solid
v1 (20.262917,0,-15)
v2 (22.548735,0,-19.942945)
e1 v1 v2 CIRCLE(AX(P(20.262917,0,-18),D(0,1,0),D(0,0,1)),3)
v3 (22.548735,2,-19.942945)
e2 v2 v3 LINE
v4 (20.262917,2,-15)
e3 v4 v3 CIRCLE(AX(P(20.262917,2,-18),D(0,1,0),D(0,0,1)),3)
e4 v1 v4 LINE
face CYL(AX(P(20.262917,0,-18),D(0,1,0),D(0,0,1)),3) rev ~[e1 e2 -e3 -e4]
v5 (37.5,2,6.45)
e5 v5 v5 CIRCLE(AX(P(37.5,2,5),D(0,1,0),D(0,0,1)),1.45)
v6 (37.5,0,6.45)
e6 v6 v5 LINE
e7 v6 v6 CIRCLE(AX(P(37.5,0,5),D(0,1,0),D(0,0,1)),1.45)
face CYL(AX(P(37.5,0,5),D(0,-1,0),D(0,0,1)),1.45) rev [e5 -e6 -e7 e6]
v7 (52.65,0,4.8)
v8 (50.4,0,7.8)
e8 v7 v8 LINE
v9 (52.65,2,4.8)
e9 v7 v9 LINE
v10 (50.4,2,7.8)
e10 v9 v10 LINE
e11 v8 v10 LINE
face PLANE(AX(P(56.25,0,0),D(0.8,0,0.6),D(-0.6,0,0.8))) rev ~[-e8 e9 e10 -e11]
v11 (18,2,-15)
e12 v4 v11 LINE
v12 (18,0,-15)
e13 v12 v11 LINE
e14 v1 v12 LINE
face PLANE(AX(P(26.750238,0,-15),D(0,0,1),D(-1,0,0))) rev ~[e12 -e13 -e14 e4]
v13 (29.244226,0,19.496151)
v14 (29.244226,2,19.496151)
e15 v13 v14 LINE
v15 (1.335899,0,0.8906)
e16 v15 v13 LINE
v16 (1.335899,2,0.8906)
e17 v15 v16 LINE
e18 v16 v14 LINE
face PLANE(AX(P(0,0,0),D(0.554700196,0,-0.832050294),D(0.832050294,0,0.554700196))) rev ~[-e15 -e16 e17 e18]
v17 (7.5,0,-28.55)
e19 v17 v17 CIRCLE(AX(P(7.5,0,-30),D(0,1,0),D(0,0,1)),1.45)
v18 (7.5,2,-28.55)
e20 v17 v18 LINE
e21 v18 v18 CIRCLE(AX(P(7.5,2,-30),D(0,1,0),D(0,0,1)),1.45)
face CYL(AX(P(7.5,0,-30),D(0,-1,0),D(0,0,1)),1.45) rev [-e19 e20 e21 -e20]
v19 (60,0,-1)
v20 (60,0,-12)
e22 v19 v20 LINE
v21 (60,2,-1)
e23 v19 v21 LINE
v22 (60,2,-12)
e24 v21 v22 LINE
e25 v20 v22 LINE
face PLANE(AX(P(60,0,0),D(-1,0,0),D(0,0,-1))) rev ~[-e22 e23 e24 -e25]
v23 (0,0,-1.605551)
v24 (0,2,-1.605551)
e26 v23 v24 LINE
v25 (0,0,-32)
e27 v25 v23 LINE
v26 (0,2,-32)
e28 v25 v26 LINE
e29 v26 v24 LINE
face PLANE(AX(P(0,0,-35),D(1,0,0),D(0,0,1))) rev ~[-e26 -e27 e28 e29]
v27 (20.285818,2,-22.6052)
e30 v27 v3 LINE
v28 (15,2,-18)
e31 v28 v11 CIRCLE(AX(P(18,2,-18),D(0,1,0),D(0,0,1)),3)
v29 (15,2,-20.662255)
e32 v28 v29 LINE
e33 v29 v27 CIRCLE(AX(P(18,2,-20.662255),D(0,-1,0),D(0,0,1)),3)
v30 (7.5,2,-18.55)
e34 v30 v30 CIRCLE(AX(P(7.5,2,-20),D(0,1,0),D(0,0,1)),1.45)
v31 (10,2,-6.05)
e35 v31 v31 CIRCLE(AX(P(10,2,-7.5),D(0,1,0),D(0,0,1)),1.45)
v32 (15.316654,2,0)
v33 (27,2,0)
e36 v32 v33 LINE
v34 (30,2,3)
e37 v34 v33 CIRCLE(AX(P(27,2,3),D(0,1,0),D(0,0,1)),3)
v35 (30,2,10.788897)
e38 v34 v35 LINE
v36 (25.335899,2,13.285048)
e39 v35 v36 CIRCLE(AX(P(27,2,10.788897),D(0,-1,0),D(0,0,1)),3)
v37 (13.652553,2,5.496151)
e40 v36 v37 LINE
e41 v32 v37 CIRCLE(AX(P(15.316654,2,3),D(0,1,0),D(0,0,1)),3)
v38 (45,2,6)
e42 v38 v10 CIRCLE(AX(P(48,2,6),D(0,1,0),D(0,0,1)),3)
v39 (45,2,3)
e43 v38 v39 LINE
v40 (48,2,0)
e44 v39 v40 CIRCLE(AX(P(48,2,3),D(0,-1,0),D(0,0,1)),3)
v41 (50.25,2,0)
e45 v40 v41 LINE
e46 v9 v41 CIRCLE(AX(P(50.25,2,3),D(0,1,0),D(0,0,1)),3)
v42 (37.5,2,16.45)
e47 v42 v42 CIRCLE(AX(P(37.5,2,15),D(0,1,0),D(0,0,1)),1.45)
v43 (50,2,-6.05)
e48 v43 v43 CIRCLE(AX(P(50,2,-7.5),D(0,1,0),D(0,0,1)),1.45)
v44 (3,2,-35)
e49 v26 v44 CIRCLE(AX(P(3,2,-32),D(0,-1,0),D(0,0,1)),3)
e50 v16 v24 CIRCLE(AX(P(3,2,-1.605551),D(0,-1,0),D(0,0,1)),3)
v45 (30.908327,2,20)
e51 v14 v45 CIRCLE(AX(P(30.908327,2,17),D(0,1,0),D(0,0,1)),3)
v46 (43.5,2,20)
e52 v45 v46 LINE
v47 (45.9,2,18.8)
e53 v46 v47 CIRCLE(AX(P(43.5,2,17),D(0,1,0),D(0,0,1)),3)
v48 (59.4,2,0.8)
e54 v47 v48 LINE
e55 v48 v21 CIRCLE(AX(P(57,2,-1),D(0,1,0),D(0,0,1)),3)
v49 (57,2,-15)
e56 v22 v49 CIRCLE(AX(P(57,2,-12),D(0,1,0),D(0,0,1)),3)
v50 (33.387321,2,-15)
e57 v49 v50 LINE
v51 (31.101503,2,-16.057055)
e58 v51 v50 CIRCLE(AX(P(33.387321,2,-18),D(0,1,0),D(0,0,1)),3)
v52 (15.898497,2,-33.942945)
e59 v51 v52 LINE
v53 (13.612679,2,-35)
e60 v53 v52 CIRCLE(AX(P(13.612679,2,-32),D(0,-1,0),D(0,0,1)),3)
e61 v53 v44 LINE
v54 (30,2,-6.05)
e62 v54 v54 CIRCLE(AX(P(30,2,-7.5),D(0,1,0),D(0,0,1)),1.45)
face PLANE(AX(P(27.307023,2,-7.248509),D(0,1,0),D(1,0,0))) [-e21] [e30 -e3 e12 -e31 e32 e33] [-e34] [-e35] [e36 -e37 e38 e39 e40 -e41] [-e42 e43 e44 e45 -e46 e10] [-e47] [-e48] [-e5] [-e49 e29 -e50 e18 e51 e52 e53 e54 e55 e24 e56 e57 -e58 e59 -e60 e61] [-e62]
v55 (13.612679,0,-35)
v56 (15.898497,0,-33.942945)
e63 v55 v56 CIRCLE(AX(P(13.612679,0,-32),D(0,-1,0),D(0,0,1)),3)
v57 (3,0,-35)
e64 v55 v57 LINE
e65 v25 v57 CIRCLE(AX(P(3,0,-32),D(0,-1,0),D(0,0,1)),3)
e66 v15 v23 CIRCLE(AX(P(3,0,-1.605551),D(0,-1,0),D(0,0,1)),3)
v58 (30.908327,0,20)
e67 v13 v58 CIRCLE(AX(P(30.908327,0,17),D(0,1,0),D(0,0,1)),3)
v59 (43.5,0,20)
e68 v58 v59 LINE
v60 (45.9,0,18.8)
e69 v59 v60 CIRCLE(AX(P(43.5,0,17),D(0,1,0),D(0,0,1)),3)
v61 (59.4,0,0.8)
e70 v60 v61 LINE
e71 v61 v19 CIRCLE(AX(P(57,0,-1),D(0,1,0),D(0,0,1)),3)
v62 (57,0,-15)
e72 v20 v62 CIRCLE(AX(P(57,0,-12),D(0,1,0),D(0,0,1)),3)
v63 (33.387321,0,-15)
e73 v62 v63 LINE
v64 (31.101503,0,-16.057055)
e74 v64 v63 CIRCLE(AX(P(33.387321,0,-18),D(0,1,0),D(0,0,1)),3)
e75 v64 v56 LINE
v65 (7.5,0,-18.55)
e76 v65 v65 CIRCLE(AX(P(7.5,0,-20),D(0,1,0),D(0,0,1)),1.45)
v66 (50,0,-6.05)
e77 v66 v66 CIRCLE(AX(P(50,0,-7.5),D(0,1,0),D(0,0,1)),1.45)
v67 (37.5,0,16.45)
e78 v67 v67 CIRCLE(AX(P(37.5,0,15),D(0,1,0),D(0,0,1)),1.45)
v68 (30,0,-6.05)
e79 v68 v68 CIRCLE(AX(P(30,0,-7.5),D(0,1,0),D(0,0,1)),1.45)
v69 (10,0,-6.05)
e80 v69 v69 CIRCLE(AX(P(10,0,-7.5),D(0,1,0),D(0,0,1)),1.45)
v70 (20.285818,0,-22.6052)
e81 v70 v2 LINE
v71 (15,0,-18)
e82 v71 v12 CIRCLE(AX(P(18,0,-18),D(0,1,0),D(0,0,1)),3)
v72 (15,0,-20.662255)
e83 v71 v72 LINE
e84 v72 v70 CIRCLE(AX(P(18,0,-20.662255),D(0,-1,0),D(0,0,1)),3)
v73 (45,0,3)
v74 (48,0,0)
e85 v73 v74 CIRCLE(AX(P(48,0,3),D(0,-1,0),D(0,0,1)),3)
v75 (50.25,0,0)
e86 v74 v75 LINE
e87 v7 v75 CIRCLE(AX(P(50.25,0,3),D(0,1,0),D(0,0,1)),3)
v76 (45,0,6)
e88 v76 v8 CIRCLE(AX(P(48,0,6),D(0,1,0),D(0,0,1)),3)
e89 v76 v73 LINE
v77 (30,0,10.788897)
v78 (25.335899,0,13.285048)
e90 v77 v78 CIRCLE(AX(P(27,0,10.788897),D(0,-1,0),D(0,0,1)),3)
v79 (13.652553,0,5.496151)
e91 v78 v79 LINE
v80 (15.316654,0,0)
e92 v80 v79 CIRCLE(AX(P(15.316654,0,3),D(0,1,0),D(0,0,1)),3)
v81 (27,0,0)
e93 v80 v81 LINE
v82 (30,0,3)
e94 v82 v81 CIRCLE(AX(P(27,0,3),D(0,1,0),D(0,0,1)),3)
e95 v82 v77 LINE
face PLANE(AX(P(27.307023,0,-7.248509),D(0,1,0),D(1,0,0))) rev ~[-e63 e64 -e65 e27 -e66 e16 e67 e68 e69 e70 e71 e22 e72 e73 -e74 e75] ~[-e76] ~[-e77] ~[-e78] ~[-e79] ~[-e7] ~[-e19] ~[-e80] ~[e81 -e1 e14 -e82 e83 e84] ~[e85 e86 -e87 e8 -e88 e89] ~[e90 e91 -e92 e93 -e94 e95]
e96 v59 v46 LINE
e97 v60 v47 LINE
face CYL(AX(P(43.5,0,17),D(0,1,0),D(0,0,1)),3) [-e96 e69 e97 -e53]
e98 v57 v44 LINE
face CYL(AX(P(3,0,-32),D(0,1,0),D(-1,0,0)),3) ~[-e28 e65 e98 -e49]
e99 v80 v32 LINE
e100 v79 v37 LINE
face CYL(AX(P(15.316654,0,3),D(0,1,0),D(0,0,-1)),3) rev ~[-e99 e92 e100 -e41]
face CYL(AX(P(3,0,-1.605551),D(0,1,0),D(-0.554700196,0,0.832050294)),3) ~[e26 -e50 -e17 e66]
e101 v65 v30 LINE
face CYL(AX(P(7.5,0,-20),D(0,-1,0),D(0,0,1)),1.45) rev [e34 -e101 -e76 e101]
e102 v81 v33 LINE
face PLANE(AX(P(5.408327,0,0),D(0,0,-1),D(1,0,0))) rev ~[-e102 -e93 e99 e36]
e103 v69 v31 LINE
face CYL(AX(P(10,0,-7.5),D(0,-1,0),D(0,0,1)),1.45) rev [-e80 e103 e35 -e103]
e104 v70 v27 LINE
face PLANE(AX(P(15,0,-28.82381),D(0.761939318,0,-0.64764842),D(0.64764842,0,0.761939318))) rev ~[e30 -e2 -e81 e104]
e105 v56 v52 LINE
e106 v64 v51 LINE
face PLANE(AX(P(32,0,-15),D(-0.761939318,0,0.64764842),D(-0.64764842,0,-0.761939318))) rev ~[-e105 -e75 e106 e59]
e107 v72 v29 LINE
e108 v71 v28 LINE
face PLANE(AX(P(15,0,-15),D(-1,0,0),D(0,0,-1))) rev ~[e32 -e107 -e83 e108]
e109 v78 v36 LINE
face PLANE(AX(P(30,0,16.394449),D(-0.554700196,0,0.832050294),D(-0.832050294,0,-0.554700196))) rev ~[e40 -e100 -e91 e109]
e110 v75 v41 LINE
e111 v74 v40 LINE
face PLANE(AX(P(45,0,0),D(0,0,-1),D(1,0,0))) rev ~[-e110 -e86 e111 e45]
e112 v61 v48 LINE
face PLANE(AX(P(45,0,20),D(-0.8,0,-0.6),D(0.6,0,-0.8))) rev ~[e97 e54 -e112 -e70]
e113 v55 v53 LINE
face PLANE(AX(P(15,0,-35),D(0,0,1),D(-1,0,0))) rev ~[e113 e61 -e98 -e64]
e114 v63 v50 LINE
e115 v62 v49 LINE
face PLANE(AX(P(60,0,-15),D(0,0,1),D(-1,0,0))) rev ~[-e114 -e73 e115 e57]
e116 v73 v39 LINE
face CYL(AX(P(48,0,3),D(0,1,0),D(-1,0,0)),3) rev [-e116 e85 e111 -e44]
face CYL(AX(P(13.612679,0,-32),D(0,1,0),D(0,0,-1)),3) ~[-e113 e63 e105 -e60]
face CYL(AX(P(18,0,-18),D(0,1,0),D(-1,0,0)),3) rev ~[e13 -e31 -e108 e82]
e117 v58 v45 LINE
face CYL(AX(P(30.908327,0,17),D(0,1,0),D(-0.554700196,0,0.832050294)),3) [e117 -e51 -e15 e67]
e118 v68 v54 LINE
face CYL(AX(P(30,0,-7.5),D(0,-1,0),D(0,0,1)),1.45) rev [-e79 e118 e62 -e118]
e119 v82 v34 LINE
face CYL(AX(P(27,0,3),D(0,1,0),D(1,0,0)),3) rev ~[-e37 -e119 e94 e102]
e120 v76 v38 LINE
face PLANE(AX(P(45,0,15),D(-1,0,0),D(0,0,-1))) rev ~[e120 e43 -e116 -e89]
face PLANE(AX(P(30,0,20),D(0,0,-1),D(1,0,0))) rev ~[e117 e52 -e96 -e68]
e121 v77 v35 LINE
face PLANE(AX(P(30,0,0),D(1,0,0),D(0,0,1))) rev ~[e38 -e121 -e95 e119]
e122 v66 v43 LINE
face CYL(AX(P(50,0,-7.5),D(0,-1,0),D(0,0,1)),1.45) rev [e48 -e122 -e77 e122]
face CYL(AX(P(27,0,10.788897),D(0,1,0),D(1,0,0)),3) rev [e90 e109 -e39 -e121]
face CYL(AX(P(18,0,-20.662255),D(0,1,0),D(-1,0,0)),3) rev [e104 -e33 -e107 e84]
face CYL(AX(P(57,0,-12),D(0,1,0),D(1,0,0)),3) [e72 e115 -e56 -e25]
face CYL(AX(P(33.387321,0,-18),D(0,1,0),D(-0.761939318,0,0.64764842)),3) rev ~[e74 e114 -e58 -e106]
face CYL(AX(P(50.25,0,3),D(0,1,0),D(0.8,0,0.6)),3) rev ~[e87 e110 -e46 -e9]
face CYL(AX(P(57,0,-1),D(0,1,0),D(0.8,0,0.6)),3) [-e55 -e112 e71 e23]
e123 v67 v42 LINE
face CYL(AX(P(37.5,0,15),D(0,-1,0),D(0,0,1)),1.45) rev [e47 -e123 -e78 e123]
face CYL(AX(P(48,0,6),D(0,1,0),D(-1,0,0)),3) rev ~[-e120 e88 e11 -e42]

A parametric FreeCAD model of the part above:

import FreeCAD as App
import Part
import Sketcher

V = App.Vector
Q = App.Units.Quantity


def edges_at(feature, points):
    """Names of the edges that pass closest to the given points."""
    edges = feature.Shape.Edges
    near = lambda p: min(range(len(edges)), key=lambda i: edges[i].distToShape(Part.Vertex(*p))[0])
    return sorted({f"Edge{near(p) + 1}" for p in points})


def add_polygon(sketch, points):
    """Adds a closed chain of lines whose ends are joined by coincident constraints."""
    first, n = sketch.GeometryCount, len(points)
    for a, b in zip(points, points[1:] + points[:1]):
        sketch.addGeometry(Part.LineSegment(App.Vector(*a, 0), App.Vector(*b, 0)), False)
    for i in range(n):
        sketch.addConstraint(Sketcher.Constraint("Coincident", first + i, 2, first + (i + 1) % n, 1))

doc = App.newDocument("Part")
body = doc.addObject("PartDesign::Body", "Body")

sketch1 = body.newObject("Sketcher::SketchObject", "Sketch")
sketch1.AttachmentSupport = (doc.getObject("XZ_Plane"), [""])
sketch1.MapMode = "FlatFace"
add_polygon(sketch1, [(0, 0), (30, 20), (45, 20), (60, 0), (60, -15), (32, -15), (15, -35), (0, -35)])
add_polygon(sketch1, [(30, 0), (30, 16.394449), (5.408327, 0)])
sketch1.addGeometry(Part.Circle(V(37.5, 15, 0), V(0, 0, 1), 1.45), False)
sketch1.addGeometry(Part.Circle(V(37.5, 5, 0), V(0, 0, 1), 1.45), False)
add_polygon(sketch1, [(45, 15), (45, 0), (56.25, 0)])
sketch1.addGeometry(Part.Circle(V(10, -7.5, 0), V(0, 0, 1), 1.45), False)
sketch1.addGeometry(Part.Circle(V(30, -7.5, 0), V(0, 0, 1), 1.45), False)
sketch1.addGeometry(Part.Circle(V(7.5, -20, 0), V(0, 0, 1), 1.45), False)
sketch1.addGeometry(Part.Circle(V(7.5, -30, 0), V(0, 0, 1), 1.45), False)
add_polygon(sketch1, [(15, -15), (15, -28.82381), (26.750238, -15)])
sketch1.addGeometry(Part.Circle(V(50, -7.5, 0), V(0, 0, 1), 1.45), False)
sketch1.addConstraint([
    Sketcher.Constraint("Horizontal", 1),
    Sketcher.Constraint("Vertical", 3),
    Sketcher.Constraint("Horizontal", 4),
    Sketcher.Constraint("Horizontal", 6),
    Sketcher.Constraint("Vertical", 7),
    Sketcher.Constraint("Vertical", 8),
    Sketcher.Constraint("Horizontal", 10),
    Sketcher.Constraint("Vertical", 13),
    Sketcher.Constraint("Horizontal", 14),
    Sketcher.Constraint("Vertical", 20),
    Sketcher.Constraint("Horizontal", 22),
    Sketcher.Constraint("Coincident", 7, 2, -1, 1),
    Sketcher.Constraint("Equal", 11, 12),
    Sketcher.Constraint("Equal", 12, 16),
    Sketcher.Constraint("Equal", 16, 17),
    Sketcher.Constraint("Equal", 17, 18),
    Sketcher.Constraint("Equal", 18, 19),
    Sketcher.Constraint("Equal", 19, 23),
    Sketcher.Constraint("PointOnObject", 2, 2, -1),
    Sketcher.Constraint("PointOnObject", 9, 2, -1),
    Sketcher.Constraint("PointOnObject", 13, 2, -1),
    Sketcher.Constraint("Parallel", 0, 9),
    Sketcher.Constraint("Parallel", 2, 15),
    Sketcher.Constraint("Parallel", 5, 21),
    Sketcher.Constraint("Horizontal", 16, 3, 17, 3),
    Sketcher.Constraint("Horizontal", 17, 3, 23, 3),
    Sketcher.Constraint("Horizontal", 11, 3, 15, 2),
    Sketcher.Constraint("Horizontal", 4, 2, 21, 2),
    Sketcher.Constraint("Vertical", 11, 3, 12, 3),
    Sketcher.Constraint("Vertical", 18, 3, 19, 3),
    Sketcher.Constraint("Vertical", 17, 3, 0, 2),
    Sketcher.Constraint("Vertical", 0, 2, 8, 2),
    Sketcher.Constraint("Vertical", 1, 2, 13, 2),
    Sketcher.Constraint("Vertical", 5, 2, 20, 2),
    Sketcher.Constraint("Equal", 1, 6),
    Sketcher.Constraint("Equal", 6, 3),
    Sketcher.Constraint("Equal", 3, 13),
    Sketcher.Constraint("Diameter", 11, Q("2.9 mm")),
    Sketcher.Constraint("DistanceX", 1, 1, 1, 2, Q("15 mm")),
    Sketcher.Constraint("DistanceX", 4, 2, 4, 1, Q("28 mm")),
    Sketcher.Constraint("DistanceY", 7, 1, 7, 2, Q("35 mm")),
    Sketcher.Constraint("Distance", 2, Q("25 mm")),
    Sketcher.Constraint("DistanceY", -1, 1, 12, 3, Q("5 mm")),
    Sketcher.Constraint("DistanceX", -1, 1, 16, 3, Q("10 mm")),
    Sketcher.Constraint("DistanceX", -1, 1, 17, 3, Q("30 mm")),
    Sketcher.Constraint("DistanceY", 18, 3, -1, 1, Q("20 mm")),
    Sketcher.Constraint("DistanceY", 19, 3, -1, 1, Q("30 mm")),
    Sketcher.Constraint("DistanceX", -1, 1, 23, 3, Q("50 mm")),
    Sketcher.Constraint("DistanceY", -1, 1, 0, 2, Q("20 mm")),
    Sketcher.Constraint("DistanceX", 18, 3, 12, 3, Q("30 mm")),
    Sketcher.Constraint("DistanceX", -1, 1, 11, 3, Q("37.5 mm")),
    Sketcher.Constraint("DistanceY", 16, 3, -1, 1, Q("7.5 mm")),
    Sketcher.Constraint("DistanceX", 22, 2, 22, 1, Q("11.750238 mm")),
    Sketcher.Constraint("DistanceY", 8, 1, 8, 2, Q("16.394449 mm")),
])
pad1 = body.newObject("PartDesign::Pad", "Pad")
pad1.Profile = sketch1
pad1.Length = 2
pad1.Reversed = True
doc.recompute()

fillet = body.newObject("PartDesign::Fillet", "Fillet")
fillet.Base = (pad1, edges_at(pad1, [
    (15, 1, -15),
    (26.75, 1, -15),
    (15, 1, -28.824),
    (45, 1, 15),
    (56.25, 1, 0),
    (45, 1, 0),
    (30, 1, 0),
    (5.408, 1, 0),
    (30, 1, 16.394),
    (60, 1, -15),
    (60, 1, 0),
    (45, 1, 20),
    (30, 1, 20),
    (0, 1, 0),
    (0, 1, -35),
    (15, 1, -35),
    (32, 1, -15),
]))
fillet.Radius = 3

doc.recompute()
